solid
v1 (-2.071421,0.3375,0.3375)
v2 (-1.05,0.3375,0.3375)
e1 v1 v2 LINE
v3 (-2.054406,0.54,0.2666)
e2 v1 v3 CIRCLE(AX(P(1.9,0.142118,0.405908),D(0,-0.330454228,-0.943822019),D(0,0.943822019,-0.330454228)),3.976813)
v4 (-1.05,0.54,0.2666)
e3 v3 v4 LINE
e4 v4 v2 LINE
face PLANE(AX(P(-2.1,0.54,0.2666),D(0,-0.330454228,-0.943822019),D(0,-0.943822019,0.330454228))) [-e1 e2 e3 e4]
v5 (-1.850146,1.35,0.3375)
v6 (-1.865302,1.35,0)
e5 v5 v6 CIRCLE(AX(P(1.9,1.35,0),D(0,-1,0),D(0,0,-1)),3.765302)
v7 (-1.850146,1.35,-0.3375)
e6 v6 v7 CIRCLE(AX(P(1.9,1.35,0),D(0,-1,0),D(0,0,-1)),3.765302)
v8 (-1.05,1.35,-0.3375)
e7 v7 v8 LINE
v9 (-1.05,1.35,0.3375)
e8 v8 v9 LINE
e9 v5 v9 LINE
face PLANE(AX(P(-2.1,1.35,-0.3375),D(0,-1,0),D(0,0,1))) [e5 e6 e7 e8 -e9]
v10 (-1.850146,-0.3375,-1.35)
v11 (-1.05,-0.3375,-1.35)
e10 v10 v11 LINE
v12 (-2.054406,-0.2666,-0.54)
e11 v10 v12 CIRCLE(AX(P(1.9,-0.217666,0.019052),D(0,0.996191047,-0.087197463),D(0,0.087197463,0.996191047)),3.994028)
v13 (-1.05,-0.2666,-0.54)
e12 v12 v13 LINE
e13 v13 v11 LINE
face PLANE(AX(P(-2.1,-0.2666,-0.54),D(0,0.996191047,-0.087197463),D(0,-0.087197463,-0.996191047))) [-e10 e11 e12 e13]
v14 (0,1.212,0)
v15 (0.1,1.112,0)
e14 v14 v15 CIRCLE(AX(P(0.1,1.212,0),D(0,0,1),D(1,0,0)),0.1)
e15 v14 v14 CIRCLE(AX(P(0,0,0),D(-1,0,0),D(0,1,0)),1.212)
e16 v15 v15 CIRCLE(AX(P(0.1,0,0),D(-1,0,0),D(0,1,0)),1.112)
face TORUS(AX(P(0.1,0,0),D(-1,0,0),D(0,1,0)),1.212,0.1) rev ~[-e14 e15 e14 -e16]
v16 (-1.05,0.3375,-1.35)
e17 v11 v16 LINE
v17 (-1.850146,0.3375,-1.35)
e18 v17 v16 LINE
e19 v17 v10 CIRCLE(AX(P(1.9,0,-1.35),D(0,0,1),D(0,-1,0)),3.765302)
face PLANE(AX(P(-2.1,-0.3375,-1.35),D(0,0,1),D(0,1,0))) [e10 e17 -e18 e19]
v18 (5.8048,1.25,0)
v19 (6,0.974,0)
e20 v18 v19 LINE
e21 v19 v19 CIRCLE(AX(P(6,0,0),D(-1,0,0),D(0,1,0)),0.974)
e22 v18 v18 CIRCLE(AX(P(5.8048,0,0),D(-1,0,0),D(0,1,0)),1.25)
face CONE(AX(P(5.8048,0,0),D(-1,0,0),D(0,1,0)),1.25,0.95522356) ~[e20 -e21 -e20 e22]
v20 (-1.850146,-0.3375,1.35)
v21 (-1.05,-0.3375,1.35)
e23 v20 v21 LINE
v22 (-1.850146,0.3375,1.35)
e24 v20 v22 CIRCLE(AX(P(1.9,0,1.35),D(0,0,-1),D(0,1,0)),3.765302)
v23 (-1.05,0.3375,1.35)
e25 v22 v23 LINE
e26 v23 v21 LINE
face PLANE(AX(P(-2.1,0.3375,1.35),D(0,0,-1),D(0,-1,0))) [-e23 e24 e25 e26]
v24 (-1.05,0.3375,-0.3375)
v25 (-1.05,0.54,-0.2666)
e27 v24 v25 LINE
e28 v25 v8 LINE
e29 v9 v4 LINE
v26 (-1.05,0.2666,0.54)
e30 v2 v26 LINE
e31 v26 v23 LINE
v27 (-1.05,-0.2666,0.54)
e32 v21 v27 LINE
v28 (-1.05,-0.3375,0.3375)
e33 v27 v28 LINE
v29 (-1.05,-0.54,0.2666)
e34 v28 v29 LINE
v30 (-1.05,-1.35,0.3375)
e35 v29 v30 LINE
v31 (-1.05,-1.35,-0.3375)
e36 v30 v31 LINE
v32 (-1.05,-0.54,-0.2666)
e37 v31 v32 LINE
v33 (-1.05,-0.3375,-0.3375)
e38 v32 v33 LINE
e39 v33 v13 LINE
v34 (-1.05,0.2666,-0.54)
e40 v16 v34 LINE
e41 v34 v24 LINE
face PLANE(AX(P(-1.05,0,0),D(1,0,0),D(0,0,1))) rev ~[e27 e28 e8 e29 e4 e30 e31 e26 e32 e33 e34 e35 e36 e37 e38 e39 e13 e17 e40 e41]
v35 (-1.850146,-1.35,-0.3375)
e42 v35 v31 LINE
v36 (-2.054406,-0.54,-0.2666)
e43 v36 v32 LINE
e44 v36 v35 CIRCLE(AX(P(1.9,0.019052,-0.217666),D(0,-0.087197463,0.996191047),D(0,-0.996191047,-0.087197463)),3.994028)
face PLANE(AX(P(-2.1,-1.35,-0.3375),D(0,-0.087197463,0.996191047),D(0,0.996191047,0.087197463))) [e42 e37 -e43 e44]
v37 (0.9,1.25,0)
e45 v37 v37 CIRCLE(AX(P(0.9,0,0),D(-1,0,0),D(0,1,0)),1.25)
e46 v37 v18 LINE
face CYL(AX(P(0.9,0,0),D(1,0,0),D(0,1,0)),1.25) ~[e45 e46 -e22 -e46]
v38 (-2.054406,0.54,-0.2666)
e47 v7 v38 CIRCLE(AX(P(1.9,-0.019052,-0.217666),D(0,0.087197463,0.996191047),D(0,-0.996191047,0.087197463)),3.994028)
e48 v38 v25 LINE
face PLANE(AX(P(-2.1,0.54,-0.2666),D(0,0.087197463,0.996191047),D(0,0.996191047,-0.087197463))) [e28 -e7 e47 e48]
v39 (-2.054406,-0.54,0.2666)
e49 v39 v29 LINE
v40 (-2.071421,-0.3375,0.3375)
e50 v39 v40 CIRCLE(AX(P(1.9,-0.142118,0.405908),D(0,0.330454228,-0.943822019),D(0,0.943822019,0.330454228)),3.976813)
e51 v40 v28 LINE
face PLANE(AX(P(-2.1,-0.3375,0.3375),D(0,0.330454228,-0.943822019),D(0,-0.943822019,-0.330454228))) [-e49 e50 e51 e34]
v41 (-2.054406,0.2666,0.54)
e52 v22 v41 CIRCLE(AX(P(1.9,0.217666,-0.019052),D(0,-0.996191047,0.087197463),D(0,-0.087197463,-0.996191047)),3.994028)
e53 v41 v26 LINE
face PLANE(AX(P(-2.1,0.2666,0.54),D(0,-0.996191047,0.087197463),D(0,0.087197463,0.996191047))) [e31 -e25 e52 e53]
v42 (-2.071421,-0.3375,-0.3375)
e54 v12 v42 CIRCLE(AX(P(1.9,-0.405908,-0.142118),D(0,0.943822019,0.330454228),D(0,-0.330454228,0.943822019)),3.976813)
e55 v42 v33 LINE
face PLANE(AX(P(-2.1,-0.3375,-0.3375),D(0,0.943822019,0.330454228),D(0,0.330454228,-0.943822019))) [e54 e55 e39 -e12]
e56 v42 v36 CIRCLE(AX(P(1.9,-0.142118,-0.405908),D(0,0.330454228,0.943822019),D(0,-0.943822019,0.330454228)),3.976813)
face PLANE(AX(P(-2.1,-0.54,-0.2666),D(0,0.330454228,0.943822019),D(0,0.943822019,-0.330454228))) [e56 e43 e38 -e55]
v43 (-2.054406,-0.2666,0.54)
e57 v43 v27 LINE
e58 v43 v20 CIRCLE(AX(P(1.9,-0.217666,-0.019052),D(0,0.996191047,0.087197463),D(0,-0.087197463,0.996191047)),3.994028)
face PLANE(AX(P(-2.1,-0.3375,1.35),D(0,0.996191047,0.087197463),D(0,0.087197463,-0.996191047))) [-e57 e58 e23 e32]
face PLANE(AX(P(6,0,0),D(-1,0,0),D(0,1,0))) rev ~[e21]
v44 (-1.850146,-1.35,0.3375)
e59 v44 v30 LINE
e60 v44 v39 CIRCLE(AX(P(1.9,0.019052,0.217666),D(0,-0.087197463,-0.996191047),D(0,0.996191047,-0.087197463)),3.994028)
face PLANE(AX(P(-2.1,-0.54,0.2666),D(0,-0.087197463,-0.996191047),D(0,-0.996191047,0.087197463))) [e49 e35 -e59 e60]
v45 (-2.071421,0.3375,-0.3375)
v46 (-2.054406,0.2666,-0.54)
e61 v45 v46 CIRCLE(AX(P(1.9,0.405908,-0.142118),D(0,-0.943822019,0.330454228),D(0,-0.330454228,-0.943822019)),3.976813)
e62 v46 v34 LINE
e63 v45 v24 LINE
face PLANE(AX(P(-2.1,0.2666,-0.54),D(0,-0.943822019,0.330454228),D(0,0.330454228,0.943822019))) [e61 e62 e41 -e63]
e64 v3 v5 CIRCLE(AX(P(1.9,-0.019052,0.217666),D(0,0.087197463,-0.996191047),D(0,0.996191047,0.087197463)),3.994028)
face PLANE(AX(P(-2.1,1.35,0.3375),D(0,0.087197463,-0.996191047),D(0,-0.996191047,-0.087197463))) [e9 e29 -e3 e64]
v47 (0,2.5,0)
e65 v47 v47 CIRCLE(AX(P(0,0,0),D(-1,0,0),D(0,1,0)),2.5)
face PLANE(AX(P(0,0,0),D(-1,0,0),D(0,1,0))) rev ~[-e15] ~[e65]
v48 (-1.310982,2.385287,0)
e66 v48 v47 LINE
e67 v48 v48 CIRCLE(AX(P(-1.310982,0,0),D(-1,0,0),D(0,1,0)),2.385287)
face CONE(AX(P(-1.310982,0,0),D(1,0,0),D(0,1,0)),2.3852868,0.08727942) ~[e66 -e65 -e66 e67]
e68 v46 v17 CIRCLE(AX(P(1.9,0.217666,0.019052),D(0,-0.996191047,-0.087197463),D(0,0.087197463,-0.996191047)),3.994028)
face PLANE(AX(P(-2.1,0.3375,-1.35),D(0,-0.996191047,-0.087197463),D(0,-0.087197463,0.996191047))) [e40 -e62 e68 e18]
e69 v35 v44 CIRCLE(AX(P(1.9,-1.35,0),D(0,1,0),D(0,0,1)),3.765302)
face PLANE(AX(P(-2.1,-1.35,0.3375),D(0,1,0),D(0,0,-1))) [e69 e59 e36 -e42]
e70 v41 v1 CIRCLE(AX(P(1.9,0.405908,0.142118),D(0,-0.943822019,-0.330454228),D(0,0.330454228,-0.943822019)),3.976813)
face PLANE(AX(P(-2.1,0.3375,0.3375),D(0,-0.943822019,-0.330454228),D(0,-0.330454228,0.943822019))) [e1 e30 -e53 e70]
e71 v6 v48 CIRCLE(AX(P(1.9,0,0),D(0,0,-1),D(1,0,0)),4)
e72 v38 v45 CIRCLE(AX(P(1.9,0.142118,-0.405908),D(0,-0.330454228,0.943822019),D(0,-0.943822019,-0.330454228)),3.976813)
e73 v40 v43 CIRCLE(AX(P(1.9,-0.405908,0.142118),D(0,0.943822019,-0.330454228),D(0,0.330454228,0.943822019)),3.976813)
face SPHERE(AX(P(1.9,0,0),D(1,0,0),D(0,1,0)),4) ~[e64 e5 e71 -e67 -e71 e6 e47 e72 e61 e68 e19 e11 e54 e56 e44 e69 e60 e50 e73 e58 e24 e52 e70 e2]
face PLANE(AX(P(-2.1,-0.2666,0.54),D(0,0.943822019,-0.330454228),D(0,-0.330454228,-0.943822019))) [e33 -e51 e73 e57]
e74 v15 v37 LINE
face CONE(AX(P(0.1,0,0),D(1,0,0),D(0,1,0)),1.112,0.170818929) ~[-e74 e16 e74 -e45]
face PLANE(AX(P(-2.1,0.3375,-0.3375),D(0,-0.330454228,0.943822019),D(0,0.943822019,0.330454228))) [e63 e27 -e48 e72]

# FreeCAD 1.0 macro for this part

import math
import FreeCAD as App
import Part
import Sketcher
Q = App.Units.Quantity


def add_polygon(sketch, points):
    """Adds a closed chain of lines whose ends are joined by coincident constraints."""
    first, n = sketch.GeometryCount, len(points)
    for a, b in zip(points, points[1:] + points[:1]):
        sketch.addGeometry(Part.LineSegment(App.Vector(*a, 0), App.Vector(*b, 0)), False)
    for i in range(n):
        sketch.addConstraint(Sketcher.Constraint("Coincident", first + i, 2, first + (i + 1) % n, 1))

doc = App.newDocument("Part")
body = doc.addObject("PartDesign::Body", "Body")

# Sketch on XY plane
sketch1 = doc.addObject("Sketcher::SketchObject", "Sketch")
body.addObject(sketch1)
sketch1.AttachmentSupport = (doc.XY_Plane, [""])
sketch1.MapMode = "FlatFace"
sketch1.addGeometry([
    Part.ArcOfCircle(Part.Circle(App.Vector(1.9, 0, 0), App.Vector(0, 0, 1), 4), math.radians(143), math.radians(180)),  # 0
    Part.LineSegment(App.Vector(-2.1, 0, 0), App.Vector(6, 0, 0)),  # 1
    Part.LineSegment(App.Vector(6, 0, 0), App.Vector(6, 0.97, 0)),  # 2
    Part.LineSegment(App.Vector(6, 0.97, 0), App.Vector(5.8, 1.25, 0)),  # 3
    Part.LineSegment(App.Vector(5.8, 1.25, 0), App.Vector(0.9, 1.25, 0)),  # 4
    Part.LineSegment(App.Vector(0.9, 1.25, 0), App.Vector(0.1, 1.11, 0)),  # 5
    Part.ArcOfCircle(Part.Circle(App.Vector(0.1, 1.21, 0), App.Vector(0, 0, 1), 0.1), math.radians(180), math.radians(270)),  # 6
    Part.LineSegment(App.Vector(0, 1.21, 0), App.Vector(0, 2.5, 0)),  # 7
    Part.LineSegment(App.Vector(0, 2.5, 0), App.Vector(-1.31, 2.39, 0)),  # 8
], False)
sketch1.addConstraint([
    Sketcher.Constraint("Coincident", 0, 2, 1, 1),
    Sketcher.Constraint("Coincident", 1, 2, 2, 1),
    Sketcher.Constraint("Coincident", 2, 2, 3, 1),
    Sketcher.Constraint("Coincident", 3, 2, 4, 1),
    Sketcher.Constraint("Coincident", 4, 2, 5, 1),
    Sketcher.Constraint("Coincident", 5, 2, 6, 2),
    Sketcher.Constraint("Tangent", 6, 1, 7, 1),
    Sketcher.Constraint("Coincident", 7, 2, 8, 1),
    Sketcher.Constraint("Coincident", 8, 2, 0, 1),
    Sketcher.Constraint("Horizontal", 1),
    Sketcher.Constraint("Vertical", 2),
    Sketcher.Constraint("Horizontal", 4),
    Sketcher.Constraint("Vertical", 7),
    Sketcher.Constraint("PointOnObject", 0, 3, -1),
    Sketcher.Constraint("PointOnObject", 0, 2, -1),
    Sketcher.Constraint("PointOnObject", 6, 1, -2),
    Sketcher.Constraint("Vertical", 6, 3, 5, 2),
    Sketcher.Constraint("Radius", 0, 4.0),
    Sketcher.Constraint("Radius", 6, 0.1),
    Sketcher.Constraint("Angle", 8, Q("-175 deg")),
    Sketcher.Constraint("DistanceX", 1, 1, 1, 2, 8.1),
    Sketcher.Constraint("DistanceX", -1, 1, 1, 2, 6.0),
    Sketcher.Constraint("DistanceX", 4, 2, 0, 3, 1.0),
    Sketcher.Constraint("DistanceY", -1, 1, 7, 2, 2.5),
    Sketcher.Constraint("Angle", 3, Q("125.2697 deg")),
    Sketcher.Constraint("DistanceY", 2, 1, 2, 2, 0.974),
    Sketcher.Constraint("DistanceY", 7, 1, 7, 2, 1.288),
    Sketcher.Constraint("DistanceY", -1, 1, 3, 2, 1.25),
])
revolution = doc.addObject("PartDesign::Revolution", "Revolution")
body.addObject(revolution)
revolution.Profile = sketch1
revolution.ReferenceAxis = (sketch1, ["H_Axis"])
revolution.Angle = 360

# Sketch on YZ plane
sketch2 = doc.addObject("Sketcher::SketchObject", "Sketch001")
body.addObject(sketch2)
sketch2.AttachmentSupport = (doc.YZ_Plane, [""])
sketch2.MapMode = "FlatFace"
sketch2.AttachmentOffset = App.Placement(App.Vector(0, 0, -2.1), App.Rotation())
add_polygon(sketch2, [(0.27, 0.54), (0.34, 1.35), (-0.34, 1.35), (-0.27, 0.54), (-0.34, 0.34), (-0.54, 0.27), (-1.35, 0.34), (-1.35, -0.34), (-0.54, -0.27), (-0.34, -0.34), (-0.27, -0.54), (-0.34, -1.35), (0.34, -1.35), (0.27, -0.54), (0.34, -0.34), (0.54, -0.27), (1.35, -0.34), (1.35, 0.34), (0.54, 0.27), (0.34, 0.34)])  # lines 0-19
sketch2.addConstraint([
    Sketcher.Constraint("Horizontal", 1),
    Sketcher.Constraint("Vertical", 6),
    Sketcher.Constraint("Horizontal", 11),
    Sketcher.Constraint("Vertical", 16),
    Sketcher.Constraint("Symmetric", 0, 2, 10, 2, -1, 1),
    Sketcher.Constraint("Symmetric", 2, 2, 12, 2, -1, 1),
    Sketcher.Constraint("Symmetric", 3, 2, 13, 2, -1, 1),
    Sketcher.Constraint("Symmetric", 4, 2, 14, 2, -1, 1),
    Sketcher.Constraint("Symmetric", 5, 2, 15, 2, -1, 1),
    Sketcher.Constraint("Symmetric", 7, 2, 17, 2, -1, 1),
    Sketcher.Constraint("Symmetric", 8, 2, 18, 2, -1, 1),
    Sketcher.Constraint("Symmetric", 9, 2, 19, 2, -1, 1),
    Sketcher.Constraint("Symmetric", 9, 2, 12, 2, -2),
    Sketcher.Constraint("Symmetric", 8, 2, 13, 2, -2),
    Sketcher.Constraint("Symmetric", 7, 2, 14, 2, -2),
    Sketcher.Constraint("Perpendicular", 0, 5),
    Sketcher.Constraint("Perpendicular", 2, 7),
    Sketcher.Constraint("Perpendicular", 3, 8),
    Sketcher.Constraint("Perpendicular", 7, 12),
    Sketcher.Constraint("Perpendicular", 12, 17),
    Sketcher.Constraint("Horizontal", 3, 2, 5, 2),
    Sketcher.Constraint("Horizontal", 6, 2, 8, 2),
    Sketcher.Constraint("Vertical", 1, 2, 3, 2),
    Sketcher.Constraint("Equal", 11, 6),
    Sketcher.Constraint("Equal", 3, 4),
    Sketcher.Constraint("DistanceX", 1, 2, 1, 1, 0.675),
    Sketcher.Constraint("DistanceY", -1, 1, 0, 2, 1.35),
    Sketcher.Constraint("DistanceY", -1, 1, 2, 2, 0.54),
    Sketcher.Constraint("Distance", 0, 0.813),
])
pocket1 = doc.addObject("PartDesign::Pocket", "Pocket")
body.addObject(pocket1)
pocket1.Profile = sketch2
pocket1.Length = 1.05
pocket1.Reversed = True

doc.recompute()
